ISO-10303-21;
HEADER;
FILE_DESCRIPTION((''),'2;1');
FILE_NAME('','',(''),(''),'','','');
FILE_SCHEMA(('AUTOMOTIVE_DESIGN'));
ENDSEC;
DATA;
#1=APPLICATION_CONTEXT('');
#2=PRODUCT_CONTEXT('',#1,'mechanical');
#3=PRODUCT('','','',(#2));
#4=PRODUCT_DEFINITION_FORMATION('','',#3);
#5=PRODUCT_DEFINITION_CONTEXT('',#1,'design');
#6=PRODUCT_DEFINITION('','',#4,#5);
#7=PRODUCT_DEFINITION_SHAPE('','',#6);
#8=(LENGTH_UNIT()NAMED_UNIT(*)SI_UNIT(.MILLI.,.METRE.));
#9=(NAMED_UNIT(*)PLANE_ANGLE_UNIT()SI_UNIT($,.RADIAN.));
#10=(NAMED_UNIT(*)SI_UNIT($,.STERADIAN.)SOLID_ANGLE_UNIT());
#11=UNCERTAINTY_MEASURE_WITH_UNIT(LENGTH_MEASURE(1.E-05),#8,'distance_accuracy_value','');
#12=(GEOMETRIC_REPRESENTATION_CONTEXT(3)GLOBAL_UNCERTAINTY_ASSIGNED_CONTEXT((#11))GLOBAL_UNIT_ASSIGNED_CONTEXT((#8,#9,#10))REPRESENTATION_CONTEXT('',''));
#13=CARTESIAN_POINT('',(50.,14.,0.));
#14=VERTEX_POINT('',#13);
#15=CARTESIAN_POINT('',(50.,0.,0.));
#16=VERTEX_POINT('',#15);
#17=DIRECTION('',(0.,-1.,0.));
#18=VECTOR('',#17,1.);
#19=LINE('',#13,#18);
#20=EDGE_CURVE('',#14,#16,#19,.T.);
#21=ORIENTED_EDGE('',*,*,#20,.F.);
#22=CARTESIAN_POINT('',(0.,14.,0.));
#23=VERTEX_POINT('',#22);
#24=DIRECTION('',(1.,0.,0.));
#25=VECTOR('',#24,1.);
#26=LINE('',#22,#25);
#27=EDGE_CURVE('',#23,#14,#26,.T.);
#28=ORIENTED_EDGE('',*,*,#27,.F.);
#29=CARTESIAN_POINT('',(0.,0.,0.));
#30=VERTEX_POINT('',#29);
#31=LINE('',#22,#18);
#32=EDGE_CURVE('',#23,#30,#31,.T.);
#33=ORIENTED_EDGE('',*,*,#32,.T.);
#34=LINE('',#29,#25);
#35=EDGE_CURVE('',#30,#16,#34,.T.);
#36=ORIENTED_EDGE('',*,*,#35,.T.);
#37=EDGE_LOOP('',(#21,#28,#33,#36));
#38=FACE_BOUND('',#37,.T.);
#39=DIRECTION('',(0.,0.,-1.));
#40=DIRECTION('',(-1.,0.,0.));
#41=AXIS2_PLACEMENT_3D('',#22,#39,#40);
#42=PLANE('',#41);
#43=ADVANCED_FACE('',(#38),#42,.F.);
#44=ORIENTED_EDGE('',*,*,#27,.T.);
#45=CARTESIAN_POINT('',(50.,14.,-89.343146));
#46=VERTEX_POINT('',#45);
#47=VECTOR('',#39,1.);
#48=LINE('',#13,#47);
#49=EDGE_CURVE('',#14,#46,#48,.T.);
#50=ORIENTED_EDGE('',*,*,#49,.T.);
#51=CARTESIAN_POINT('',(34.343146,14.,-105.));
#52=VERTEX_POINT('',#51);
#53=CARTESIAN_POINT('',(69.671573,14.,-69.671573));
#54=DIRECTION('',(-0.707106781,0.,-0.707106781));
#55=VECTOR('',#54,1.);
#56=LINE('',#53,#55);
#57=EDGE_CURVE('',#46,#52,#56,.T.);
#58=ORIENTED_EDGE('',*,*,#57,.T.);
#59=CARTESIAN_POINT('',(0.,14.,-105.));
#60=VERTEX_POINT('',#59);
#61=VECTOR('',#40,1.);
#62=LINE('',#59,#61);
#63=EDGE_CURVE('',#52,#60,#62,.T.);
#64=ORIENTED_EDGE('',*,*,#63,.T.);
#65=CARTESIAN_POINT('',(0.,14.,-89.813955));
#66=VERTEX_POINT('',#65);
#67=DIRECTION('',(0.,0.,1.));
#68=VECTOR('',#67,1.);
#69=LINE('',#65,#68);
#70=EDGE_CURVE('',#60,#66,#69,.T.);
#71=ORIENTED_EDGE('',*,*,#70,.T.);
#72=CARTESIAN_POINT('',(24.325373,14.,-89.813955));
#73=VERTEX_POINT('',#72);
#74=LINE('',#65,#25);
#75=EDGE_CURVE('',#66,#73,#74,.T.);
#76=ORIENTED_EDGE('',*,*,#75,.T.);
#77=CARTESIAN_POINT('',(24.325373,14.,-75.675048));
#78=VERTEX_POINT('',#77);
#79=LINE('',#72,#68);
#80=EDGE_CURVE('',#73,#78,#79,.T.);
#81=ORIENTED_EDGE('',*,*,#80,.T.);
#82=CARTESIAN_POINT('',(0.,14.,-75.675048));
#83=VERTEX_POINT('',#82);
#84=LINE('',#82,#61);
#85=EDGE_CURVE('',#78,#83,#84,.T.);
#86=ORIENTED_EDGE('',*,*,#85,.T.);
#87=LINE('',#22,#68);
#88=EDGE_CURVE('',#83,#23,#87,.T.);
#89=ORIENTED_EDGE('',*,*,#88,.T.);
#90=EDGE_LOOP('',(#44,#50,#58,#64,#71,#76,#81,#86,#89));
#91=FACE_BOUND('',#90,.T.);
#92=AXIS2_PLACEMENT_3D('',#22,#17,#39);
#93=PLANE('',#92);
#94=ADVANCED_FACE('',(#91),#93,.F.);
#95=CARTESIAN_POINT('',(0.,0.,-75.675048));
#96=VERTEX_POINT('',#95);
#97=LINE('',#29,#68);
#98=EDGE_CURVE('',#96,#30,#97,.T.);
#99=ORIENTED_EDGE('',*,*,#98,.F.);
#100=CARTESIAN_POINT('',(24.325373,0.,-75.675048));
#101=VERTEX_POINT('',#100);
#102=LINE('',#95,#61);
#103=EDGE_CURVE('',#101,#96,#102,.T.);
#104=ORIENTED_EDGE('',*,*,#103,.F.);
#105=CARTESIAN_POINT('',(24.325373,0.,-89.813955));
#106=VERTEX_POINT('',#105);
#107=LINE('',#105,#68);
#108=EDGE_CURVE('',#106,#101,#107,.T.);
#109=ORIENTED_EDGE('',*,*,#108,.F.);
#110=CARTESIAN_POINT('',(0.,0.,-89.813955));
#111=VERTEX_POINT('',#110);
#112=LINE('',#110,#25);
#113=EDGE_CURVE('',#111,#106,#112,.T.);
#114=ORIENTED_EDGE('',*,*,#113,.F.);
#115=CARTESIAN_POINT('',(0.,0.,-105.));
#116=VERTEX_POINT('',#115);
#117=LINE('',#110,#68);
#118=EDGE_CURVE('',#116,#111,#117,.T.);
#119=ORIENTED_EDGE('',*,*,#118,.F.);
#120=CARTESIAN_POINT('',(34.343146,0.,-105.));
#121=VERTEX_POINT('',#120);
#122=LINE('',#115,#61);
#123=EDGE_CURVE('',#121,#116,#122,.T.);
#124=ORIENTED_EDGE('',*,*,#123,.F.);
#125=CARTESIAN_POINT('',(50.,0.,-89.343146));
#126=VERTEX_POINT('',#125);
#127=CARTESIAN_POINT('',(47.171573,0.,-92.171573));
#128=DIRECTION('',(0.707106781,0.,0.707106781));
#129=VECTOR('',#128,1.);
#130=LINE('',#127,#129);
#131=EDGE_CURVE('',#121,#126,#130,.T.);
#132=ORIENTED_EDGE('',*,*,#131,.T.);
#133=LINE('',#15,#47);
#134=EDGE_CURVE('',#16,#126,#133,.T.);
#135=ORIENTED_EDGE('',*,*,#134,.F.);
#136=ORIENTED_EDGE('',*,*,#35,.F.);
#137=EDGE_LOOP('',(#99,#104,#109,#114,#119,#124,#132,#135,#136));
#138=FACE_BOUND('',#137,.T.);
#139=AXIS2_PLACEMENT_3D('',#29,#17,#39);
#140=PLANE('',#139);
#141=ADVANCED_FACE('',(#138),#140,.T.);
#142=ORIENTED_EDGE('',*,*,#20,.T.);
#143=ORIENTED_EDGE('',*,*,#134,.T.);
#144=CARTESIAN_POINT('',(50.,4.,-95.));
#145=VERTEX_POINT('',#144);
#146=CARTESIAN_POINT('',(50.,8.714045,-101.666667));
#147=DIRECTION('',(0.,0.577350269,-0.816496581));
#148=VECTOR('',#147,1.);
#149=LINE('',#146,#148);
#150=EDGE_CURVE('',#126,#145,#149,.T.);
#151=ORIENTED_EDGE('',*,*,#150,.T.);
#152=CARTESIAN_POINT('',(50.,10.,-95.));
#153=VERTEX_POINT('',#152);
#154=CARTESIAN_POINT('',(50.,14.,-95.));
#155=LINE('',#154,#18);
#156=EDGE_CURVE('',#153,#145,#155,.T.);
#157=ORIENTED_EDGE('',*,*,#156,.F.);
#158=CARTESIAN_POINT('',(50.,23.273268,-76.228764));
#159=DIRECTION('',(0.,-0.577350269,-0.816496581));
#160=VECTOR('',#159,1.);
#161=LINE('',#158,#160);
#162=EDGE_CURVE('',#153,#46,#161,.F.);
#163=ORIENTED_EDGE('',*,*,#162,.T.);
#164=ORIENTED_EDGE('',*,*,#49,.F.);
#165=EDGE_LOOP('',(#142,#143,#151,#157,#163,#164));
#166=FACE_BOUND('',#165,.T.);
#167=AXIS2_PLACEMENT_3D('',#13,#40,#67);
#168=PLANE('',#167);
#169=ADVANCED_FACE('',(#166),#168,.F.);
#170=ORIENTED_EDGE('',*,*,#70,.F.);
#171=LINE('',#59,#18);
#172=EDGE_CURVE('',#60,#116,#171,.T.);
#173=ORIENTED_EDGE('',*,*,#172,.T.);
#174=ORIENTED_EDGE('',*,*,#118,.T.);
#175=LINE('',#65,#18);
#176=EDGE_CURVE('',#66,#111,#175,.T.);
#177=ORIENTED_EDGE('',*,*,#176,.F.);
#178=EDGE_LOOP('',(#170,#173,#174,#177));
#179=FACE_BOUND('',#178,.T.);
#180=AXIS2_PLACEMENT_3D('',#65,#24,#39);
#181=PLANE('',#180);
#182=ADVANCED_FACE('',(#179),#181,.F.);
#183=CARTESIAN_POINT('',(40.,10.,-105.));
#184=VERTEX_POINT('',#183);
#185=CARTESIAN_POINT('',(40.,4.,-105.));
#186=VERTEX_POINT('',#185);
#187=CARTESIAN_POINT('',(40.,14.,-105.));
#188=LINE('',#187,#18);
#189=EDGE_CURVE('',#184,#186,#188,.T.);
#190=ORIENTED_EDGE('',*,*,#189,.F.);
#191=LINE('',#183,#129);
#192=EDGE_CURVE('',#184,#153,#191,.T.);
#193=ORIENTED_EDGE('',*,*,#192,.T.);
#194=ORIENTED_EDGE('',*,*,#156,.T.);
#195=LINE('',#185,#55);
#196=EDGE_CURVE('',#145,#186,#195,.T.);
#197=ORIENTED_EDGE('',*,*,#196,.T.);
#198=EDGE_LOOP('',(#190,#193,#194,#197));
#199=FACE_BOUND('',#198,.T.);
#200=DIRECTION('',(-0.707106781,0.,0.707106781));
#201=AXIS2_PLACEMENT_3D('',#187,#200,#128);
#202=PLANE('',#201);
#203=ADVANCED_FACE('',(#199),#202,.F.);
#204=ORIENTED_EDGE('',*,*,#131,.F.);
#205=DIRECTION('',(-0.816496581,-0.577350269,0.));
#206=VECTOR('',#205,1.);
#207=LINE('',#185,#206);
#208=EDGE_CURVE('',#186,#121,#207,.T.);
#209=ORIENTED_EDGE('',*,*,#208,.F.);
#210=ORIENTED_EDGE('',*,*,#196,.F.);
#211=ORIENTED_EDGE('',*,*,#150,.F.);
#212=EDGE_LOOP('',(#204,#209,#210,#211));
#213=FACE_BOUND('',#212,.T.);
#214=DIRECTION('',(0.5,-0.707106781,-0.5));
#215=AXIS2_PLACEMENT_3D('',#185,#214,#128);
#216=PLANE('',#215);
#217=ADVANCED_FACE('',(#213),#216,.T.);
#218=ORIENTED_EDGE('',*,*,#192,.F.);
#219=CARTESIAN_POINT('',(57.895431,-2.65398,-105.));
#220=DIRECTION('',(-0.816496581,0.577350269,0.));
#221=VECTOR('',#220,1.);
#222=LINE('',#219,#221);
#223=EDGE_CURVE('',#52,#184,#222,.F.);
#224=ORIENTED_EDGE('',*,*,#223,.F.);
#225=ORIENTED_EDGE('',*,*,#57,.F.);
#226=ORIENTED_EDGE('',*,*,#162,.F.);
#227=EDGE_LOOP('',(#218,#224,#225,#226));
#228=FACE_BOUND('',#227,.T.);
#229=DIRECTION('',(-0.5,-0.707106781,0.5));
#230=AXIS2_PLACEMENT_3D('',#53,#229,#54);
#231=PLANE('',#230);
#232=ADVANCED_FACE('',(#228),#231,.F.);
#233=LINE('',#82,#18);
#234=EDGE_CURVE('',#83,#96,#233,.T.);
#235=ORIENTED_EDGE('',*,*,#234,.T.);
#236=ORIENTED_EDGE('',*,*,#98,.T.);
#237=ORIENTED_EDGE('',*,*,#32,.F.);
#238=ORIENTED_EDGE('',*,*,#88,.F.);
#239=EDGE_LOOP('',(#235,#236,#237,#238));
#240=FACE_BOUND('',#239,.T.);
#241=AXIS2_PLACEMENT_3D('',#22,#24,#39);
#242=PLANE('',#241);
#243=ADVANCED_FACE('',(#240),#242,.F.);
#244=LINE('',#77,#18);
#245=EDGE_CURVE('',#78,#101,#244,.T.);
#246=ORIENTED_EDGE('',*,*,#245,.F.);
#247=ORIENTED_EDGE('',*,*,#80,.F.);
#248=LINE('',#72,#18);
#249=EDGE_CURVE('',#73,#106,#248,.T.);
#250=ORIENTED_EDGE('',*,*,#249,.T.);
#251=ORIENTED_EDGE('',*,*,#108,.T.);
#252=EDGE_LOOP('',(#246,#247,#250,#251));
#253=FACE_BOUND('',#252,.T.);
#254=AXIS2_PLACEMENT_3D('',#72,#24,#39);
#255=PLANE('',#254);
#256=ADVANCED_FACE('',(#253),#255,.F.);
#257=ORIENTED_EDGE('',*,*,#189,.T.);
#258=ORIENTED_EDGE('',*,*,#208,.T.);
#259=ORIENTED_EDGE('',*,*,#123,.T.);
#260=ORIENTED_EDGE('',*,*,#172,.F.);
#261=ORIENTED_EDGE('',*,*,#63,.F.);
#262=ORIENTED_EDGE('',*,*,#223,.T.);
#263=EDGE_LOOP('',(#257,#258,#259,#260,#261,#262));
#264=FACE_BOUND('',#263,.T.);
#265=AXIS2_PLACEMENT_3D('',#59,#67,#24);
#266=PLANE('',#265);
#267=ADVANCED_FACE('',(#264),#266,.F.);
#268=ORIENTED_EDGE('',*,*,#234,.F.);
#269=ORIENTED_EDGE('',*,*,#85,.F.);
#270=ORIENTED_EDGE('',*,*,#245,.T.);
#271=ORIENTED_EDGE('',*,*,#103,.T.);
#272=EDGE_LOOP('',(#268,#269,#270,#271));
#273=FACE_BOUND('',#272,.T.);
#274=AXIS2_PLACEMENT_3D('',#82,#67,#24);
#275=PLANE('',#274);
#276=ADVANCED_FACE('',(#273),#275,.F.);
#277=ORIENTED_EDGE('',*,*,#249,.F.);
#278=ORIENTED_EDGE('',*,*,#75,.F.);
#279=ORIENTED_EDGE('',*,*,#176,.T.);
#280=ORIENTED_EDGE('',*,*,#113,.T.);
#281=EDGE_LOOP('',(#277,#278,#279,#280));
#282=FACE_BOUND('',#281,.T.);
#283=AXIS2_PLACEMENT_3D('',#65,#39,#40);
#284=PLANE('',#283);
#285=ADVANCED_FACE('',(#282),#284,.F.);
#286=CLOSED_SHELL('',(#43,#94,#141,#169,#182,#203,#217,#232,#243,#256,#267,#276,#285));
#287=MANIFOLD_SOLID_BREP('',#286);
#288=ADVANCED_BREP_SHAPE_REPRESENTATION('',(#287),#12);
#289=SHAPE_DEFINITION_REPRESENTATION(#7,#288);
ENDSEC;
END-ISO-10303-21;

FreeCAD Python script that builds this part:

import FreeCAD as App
import Part
import Sketcher
from FreeCAD import Vector
Q = App.Units.Quantity


def edges_at(feature, points):
    """Names of the edges that pass closest to the given points."""
    edges = feature.Shape.Edges
    near = lambda p: min(range(len(edges)), key=lambda i: edges[i].distToShape(Part.Vertex(*p))[0])
    return sorted({f"Edge{near(p) + 1}" for p in points})


def add_polygon(sketch, points):
    """Adds a closed chain of lines whose ends are joined by coincident constraints."""
    first, n = sketch.GeometryCount, len(points)
    for a, b in zip(points, points[1:] + points[:1]):
        sketch.addGeometry(Part.LineSegment(App.Vector(*a, 0), App.Vector(*b, 0)), False)
    for i in range(n):
        sketch.addConstraint(Sketcher.Constraint("Coincident", first + i, 2, first + (i + 1) % n, 1))

doc = App.newDocument("Part")
params = doc.addObject("Spreadsheet::Sheet", "Params")
for row, (alias, value) in enumerate([
    ("sketch1_width", "40 mm"),
    ("sketch1_width2", "50 mm"),
    ("sketch1_height", "95 mm"),
    ("pad1_length", "14 mm"),
    ("chamfer_size", "4 mm"),
], start=1):
    params.set(f"A{row}", alias)
    params.set(f"B{row}", "=" + value)
    params.setAlias(f"B{row}", alias)

body = doc.addObject("PartDesign::Body", "Body")

# Sketch on XZ plane
sketch1 = body.newObject("Sketcher::SketchObject", "Sketch")
sketch1.AttachmentSupport = (doc.getObject("XZ_Plane"), [""])
sketch1.MapMode = "FlatFace"
add_polygon(sketch1, [(50, -95), (40, -105), (0, -105), (0, -90), (24, -90), (24, -76), (0, -76), (0, 0), (50, 0)])  # lines 0-8
sketch1.addConstraint([
    Sketcher.Constraint("Horizontal", 1),
    Sketcher.Constraint("Vertical", 2),
    Sketcher.Constraint("Horizontal", 3),
    Sketcher.Constraint("Vertical", 4),
    Sketcher.Constraint("Horizontal", 5),
    Sketcher.Constraint("Vertical", 6),
    Sketcher.Constraint("Horizontal", 7),
    Sketcher.Constraint("Vertical", 8),
    Sketcher.Constraint("Coincident", 6, 2, -1, 1),
    Sketcher.Constraint("PointOnObject", 1, 2, -2),
    Sketcher.Constraint("DistanceX", 1, 2, 1, 1, 40.0),
    Sketcher.Constraint("DistanceX", 7, 1, 7, 2, 50.0),
    Sketcher.Constraint("DistanceY", 8, 2, 8, 1, 95.0),
    Sketcher.Constraint("Angle", 0, Q("-135 deg")),
    Sketcher.Constraint("DistanceX", 3, 1, 3, 2, 24.325373),
    Sketcher.Constraint("DistanceY", 2, 1, 2, 2, 15.186045),
    Sketcher.Constraint("DistanceY", 4, 1, 4, 2, 14.138907),
])
sketch1.setExpression("Constraints[19]", "Params.sketch1_width")
sketch1.setExpression("Constraints[20]", "Params.sketch1_width2")
sketch1.setExpression("Constraints[21]", "Params.sketch1_height")
pad1 = body.newObject("PartDesign::Pad", "Pad")
pad1.Profile = sketch1
pad1.setExpression("Length", "Params.pad1_length")
pad1.Reversed = True
doc.recompute()

chamfer = body.newObject("PartDesign::Chamfer", "Chamfer")
chamfer.Base = (pad1, edges_at(pad1, [(45, 0, -100), (45, 14, -100)]))
chamfer.setExpression("Size", "Params.chamfer_size")

doc.recompute()
